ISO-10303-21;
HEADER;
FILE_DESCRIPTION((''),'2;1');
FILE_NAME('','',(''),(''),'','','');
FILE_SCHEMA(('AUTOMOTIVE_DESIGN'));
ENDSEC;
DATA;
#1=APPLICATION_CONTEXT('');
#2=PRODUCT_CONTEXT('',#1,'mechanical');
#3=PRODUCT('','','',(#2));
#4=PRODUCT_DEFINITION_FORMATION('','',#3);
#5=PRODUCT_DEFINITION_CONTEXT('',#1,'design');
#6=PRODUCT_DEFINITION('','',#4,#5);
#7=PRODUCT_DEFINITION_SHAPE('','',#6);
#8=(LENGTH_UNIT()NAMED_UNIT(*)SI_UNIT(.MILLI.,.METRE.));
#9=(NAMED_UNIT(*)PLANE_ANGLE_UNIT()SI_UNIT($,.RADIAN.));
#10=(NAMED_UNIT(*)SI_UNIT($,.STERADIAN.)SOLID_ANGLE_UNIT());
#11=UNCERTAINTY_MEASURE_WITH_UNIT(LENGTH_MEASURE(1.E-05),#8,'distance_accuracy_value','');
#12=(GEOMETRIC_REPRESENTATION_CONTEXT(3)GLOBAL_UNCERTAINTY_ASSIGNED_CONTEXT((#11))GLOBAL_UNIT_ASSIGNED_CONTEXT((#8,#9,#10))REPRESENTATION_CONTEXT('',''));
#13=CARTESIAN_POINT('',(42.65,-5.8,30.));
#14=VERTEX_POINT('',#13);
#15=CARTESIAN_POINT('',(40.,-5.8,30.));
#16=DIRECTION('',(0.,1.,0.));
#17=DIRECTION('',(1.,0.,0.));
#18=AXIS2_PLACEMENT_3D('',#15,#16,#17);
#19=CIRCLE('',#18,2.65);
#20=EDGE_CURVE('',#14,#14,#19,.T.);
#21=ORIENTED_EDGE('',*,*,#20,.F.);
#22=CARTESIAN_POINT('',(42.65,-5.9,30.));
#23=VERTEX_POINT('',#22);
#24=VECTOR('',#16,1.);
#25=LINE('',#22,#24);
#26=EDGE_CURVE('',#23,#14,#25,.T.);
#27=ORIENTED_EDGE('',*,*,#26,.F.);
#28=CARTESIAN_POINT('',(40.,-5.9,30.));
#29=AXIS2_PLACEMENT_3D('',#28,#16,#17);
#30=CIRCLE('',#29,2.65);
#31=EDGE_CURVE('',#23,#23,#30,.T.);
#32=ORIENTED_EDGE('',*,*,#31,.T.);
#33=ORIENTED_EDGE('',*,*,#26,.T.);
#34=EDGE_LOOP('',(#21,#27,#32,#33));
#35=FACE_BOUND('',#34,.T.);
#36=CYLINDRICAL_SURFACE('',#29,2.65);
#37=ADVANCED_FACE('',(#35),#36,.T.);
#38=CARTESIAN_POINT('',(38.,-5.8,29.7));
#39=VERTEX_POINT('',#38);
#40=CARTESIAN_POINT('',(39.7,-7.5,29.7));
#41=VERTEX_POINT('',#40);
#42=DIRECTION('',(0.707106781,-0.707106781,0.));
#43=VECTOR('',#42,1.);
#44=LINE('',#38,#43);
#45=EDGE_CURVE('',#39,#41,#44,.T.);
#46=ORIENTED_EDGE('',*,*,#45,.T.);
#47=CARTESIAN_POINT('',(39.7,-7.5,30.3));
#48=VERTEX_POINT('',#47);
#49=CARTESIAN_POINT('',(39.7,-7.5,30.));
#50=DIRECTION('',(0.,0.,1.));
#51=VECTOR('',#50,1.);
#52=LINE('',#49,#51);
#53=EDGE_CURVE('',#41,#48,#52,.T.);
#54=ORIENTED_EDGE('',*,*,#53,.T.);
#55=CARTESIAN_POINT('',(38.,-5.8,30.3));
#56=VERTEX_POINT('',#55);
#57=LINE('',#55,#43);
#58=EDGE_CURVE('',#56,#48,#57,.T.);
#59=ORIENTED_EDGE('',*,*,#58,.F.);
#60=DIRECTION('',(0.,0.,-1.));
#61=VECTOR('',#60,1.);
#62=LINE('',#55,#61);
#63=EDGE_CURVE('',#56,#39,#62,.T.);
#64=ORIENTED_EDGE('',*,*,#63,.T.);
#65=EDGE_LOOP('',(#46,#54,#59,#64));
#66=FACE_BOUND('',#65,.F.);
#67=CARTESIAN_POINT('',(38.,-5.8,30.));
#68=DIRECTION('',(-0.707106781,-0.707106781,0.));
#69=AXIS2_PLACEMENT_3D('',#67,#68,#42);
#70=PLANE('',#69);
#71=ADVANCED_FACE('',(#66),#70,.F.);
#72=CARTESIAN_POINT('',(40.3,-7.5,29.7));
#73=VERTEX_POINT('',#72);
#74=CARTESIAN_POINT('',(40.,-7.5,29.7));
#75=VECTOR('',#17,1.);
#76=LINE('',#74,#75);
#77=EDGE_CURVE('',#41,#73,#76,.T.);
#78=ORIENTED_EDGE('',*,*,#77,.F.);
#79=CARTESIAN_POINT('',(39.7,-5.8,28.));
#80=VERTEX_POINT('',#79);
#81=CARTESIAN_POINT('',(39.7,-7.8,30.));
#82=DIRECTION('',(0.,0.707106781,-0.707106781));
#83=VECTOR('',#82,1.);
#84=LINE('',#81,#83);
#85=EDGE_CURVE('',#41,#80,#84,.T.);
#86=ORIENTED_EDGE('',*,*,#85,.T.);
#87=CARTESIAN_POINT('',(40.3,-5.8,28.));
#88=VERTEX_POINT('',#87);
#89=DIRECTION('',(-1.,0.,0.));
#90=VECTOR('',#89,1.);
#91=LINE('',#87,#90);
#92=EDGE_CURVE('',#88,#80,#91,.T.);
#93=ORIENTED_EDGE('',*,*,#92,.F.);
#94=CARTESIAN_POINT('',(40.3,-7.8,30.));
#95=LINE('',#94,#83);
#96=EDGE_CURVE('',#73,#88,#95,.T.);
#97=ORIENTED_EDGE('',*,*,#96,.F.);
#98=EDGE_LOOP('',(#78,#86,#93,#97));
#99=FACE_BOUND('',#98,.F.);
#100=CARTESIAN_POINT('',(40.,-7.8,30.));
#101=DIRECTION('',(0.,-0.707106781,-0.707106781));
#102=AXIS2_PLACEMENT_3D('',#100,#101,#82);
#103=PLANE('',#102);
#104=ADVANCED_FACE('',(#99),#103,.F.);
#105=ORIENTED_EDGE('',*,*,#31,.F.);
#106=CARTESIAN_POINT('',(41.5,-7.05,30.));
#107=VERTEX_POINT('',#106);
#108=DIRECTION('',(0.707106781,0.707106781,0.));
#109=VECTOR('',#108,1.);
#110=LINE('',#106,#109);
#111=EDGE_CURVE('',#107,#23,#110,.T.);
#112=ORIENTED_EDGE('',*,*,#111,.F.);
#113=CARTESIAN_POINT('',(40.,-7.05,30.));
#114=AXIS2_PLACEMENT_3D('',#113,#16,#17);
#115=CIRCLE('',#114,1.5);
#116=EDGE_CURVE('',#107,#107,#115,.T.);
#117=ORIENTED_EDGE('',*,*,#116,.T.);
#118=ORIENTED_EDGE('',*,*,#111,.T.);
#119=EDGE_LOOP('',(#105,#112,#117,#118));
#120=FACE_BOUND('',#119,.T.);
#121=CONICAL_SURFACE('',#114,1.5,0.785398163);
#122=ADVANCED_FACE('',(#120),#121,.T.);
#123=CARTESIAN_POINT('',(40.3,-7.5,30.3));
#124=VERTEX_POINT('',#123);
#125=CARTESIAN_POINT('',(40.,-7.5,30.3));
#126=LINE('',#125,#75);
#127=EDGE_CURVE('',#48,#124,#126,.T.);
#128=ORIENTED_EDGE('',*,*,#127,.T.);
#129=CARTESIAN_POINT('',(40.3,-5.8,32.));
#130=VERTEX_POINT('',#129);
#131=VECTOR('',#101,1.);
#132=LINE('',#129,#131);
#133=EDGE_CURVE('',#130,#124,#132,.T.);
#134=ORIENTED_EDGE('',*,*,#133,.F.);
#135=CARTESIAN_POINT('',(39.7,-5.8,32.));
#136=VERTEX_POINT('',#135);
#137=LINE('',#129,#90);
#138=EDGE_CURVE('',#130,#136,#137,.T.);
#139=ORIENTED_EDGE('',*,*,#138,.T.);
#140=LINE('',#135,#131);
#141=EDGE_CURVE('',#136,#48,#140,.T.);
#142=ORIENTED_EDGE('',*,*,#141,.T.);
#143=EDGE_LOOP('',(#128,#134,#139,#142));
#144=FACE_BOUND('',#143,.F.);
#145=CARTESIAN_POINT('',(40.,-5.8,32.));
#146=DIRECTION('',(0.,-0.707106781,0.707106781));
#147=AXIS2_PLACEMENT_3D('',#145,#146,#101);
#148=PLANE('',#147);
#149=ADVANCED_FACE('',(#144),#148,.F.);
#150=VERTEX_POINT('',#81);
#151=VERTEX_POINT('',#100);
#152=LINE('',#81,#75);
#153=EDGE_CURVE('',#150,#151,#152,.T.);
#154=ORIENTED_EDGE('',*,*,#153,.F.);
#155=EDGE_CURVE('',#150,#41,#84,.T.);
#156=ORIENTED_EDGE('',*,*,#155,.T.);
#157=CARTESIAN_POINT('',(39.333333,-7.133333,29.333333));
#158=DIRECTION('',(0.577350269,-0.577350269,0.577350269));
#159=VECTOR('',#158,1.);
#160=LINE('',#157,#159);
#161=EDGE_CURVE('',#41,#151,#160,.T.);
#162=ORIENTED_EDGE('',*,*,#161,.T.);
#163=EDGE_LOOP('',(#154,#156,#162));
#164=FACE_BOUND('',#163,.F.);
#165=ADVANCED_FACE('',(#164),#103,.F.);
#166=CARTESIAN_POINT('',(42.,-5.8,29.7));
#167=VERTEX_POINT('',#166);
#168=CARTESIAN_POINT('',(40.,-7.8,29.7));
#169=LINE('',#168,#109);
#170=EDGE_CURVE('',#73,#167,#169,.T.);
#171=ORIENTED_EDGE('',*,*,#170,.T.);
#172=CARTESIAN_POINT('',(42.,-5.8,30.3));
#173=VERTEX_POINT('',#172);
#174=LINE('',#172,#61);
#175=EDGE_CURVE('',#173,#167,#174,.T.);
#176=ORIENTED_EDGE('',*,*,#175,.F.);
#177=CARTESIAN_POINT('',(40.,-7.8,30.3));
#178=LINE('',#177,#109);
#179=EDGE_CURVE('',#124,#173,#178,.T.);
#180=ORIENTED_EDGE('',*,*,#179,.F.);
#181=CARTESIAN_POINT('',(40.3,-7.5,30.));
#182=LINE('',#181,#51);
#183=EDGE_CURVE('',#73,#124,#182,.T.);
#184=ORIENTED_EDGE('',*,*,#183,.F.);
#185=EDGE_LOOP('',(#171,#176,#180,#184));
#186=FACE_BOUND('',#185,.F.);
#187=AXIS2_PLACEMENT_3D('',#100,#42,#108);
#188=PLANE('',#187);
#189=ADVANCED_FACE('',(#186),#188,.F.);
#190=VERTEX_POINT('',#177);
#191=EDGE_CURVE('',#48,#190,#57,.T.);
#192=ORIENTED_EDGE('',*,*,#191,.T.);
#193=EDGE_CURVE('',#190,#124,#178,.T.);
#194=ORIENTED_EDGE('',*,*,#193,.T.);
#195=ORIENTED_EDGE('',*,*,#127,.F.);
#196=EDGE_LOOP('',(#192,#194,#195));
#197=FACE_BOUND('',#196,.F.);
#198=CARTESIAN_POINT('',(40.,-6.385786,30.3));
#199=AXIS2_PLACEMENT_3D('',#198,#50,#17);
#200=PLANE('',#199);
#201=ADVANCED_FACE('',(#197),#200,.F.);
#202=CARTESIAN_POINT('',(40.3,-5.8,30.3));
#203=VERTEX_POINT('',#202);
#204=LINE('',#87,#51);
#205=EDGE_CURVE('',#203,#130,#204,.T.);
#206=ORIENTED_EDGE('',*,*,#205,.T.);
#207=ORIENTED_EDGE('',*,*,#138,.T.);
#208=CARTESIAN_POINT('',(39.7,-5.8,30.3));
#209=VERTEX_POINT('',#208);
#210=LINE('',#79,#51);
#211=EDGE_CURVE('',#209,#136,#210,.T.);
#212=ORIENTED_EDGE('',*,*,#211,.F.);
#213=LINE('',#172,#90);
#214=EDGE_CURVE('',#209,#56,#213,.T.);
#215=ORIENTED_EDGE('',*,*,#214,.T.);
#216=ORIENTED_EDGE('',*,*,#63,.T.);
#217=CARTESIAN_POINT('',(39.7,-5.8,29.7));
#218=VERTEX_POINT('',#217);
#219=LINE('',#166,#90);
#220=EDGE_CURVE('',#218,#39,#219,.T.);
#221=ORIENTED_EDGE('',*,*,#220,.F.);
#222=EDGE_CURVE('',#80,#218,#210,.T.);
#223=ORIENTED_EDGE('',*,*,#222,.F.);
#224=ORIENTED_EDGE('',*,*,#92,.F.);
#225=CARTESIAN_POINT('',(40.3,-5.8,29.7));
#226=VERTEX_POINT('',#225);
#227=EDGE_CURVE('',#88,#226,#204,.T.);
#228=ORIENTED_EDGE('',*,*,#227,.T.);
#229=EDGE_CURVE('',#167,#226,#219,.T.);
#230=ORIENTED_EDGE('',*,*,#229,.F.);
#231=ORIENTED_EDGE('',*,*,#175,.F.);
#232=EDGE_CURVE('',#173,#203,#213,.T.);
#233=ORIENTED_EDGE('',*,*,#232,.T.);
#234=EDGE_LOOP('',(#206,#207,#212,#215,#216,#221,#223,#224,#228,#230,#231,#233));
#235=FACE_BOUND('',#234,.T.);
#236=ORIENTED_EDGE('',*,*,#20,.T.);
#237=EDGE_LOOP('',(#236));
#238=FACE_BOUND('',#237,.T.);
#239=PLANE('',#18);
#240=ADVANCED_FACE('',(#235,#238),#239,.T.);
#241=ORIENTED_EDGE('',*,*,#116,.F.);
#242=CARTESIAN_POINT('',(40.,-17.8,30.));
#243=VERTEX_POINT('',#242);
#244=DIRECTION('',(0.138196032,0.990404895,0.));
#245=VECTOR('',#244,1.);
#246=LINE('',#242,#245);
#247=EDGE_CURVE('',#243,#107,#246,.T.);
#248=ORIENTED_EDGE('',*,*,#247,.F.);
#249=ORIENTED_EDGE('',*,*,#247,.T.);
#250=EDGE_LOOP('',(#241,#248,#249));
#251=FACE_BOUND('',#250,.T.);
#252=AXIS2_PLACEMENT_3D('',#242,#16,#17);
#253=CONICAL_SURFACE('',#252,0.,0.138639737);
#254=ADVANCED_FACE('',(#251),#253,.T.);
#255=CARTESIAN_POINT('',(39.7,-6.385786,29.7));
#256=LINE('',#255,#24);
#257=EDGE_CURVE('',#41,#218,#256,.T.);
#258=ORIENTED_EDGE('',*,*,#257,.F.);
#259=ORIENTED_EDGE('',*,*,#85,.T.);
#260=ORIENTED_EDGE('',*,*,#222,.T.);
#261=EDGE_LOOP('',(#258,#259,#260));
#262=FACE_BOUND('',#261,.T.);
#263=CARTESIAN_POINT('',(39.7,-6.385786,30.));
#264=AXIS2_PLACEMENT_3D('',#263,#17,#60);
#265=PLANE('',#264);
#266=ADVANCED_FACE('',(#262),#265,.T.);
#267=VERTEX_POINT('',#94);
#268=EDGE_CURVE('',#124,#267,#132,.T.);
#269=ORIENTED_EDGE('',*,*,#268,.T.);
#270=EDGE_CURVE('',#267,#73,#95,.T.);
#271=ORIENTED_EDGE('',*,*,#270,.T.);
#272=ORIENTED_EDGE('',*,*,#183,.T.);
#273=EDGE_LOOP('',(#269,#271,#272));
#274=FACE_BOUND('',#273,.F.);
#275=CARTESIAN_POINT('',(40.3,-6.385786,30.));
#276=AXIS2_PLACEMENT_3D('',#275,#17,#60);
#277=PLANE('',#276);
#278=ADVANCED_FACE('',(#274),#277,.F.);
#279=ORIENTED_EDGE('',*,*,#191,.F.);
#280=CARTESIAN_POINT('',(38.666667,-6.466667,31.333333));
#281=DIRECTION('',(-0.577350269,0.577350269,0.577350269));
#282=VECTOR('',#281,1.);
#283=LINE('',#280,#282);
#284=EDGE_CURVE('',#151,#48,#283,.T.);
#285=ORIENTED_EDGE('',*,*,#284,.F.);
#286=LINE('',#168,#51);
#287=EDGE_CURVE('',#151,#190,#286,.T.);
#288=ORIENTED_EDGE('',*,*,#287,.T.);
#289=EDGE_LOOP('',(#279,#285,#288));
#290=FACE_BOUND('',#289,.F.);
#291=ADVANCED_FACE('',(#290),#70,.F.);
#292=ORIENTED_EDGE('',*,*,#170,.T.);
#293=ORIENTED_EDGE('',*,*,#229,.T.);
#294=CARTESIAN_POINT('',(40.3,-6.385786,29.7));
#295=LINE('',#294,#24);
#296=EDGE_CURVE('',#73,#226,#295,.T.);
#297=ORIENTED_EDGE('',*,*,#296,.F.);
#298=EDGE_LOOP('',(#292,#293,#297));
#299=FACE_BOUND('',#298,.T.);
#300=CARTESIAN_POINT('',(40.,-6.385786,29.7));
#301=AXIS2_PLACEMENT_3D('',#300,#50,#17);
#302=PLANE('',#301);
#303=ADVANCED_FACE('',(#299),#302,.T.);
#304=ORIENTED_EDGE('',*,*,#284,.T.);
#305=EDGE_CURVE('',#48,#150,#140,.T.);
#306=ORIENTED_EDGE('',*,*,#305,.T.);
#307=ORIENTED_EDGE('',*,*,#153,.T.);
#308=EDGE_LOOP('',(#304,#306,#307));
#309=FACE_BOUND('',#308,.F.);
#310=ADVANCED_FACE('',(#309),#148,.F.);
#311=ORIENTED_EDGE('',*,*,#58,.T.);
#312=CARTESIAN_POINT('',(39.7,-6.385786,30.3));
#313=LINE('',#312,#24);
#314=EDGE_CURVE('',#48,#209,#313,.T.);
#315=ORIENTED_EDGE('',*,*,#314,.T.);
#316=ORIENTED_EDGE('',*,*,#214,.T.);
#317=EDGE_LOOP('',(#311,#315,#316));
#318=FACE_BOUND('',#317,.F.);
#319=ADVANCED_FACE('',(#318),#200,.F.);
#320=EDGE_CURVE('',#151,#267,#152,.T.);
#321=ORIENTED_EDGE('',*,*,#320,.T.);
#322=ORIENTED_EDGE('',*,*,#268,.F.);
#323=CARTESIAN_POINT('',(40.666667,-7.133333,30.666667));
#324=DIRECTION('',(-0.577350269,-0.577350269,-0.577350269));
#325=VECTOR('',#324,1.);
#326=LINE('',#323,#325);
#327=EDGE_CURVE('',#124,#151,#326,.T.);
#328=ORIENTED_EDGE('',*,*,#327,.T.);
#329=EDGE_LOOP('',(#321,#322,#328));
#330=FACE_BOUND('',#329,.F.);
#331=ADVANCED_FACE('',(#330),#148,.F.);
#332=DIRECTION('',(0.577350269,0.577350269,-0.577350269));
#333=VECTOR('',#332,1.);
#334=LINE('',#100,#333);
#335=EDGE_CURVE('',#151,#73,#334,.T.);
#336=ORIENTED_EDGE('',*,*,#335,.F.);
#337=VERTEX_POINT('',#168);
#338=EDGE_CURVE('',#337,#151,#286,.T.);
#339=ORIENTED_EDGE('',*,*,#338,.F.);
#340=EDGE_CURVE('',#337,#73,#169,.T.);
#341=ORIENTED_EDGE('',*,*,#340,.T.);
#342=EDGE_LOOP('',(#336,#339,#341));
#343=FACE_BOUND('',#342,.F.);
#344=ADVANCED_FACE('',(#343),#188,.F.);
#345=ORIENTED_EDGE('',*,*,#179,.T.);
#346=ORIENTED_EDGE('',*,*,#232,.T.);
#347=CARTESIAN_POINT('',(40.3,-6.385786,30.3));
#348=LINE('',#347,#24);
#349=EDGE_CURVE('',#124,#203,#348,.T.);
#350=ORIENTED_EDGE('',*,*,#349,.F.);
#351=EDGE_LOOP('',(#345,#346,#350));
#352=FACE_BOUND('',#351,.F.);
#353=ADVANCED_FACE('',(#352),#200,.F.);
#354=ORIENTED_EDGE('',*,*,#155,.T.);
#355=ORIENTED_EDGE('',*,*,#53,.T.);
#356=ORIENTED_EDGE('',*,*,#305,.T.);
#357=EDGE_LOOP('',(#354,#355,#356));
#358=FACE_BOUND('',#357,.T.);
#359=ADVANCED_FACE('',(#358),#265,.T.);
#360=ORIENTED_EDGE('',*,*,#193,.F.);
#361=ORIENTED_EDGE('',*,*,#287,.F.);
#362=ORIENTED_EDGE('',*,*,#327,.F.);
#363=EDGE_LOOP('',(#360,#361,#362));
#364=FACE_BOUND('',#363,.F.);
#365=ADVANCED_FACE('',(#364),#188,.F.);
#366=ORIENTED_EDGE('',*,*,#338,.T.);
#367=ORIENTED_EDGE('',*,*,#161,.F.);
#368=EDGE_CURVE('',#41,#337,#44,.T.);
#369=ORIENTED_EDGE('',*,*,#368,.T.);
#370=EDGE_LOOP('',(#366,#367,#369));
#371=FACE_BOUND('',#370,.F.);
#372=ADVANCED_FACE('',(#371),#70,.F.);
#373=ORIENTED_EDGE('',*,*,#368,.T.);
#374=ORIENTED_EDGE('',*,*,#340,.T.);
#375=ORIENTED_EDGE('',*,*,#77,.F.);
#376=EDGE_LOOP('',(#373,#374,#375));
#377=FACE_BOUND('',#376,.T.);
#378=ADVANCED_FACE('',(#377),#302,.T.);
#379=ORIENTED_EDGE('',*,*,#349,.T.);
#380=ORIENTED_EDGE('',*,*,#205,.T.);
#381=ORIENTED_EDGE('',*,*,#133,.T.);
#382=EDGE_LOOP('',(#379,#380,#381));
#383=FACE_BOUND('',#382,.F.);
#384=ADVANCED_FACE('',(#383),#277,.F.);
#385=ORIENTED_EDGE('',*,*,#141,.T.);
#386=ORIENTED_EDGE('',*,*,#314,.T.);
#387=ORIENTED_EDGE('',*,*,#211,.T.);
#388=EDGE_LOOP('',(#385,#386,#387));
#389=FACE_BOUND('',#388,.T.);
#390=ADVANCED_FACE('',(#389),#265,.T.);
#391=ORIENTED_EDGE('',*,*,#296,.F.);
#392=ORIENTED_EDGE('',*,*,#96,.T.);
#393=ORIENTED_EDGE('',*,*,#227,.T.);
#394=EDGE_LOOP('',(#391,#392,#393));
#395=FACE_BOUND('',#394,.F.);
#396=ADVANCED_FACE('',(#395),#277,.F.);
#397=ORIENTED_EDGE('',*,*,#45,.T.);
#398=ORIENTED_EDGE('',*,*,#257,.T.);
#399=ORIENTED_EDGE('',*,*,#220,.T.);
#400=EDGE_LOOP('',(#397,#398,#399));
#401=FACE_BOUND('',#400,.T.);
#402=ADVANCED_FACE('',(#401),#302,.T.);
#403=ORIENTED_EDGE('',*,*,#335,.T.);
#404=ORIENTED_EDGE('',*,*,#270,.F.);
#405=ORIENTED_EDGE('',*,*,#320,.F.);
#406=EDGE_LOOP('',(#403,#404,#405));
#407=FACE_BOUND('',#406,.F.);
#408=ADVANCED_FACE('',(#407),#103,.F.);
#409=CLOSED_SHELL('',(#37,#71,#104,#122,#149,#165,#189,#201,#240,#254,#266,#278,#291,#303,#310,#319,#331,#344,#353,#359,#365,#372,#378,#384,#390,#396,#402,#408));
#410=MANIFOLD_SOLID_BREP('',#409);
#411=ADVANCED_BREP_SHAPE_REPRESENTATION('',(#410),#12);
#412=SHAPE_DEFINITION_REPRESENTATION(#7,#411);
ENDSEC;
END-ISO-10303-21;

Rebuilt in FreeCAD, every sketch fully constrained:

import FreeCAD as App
import Part
import Sketcher
Q = App.Units.Quantity


def add_polygon(sketch, points):
    """Adds a closed chain of lines whose ends are joined by coincident constraints."""
    first, n = sketch.GeometryCount, len(points)
    for a, b in zip(points, points[1:] + points[:1]):
        sketch.addGeometry(Part.LineSegment(App.Vector(*a, 0), App.Vector(*b, 0)), False)
    for i in range(n):
        sketch.addConstraint(Sketcher.Constraint("Coincident", first + i, 2, first + (i + 1) % n, 1))

doc = App.newDocument("Part")
body = doc.addObject("PartDesign::Body", "Body")

sketch1 = doc.addObject("Sketcher::SketchObject", "Sketch")
body.addObject(sketch1)
sketch1.AttachmentSupport = (doc.XZ_Plane, [""])
sketch1.MapMode = "FlatFace"
add_polygon(sketch1, [(0, 0), (0, -12), (1.5, -1.25), (2.65, -0.1), (2.65, 0)])
sketch1.addConstraint(Sketcher.Constraint("Vertical", 0))
sketch1.addConstraint(Sketcher.Constraint("Vertical", 3))
sketch1.addConstraint(Sketcher.Constraint("Horizontal", 4))
sketch1.addConstraint(Sketcher.Constraint("Coincident", 4, 2, -1, 1))
sketch1.addConstraint(Sketcher.Constraint("DistanceY", 0, 2, 0, 1, 12.0))
sketch1.addConstraint(Sketcher.Constraint("Angle", 2, Q("45 deg")))
sketch1.addConstraint(Sketcher.Constraint("DistanceY", 3, 1, 3, 2, 0.1))
sketch1.addConstraint(Sketcher.Constraint("DistanceX", 4, 2, 4, 1, 2.65))
sketch1.addConstraint(Sketcher.Constraint("DistanceX", -1, 1, 1, 2, 1.5))
revolution = doc.addObject("PartDesign::Revolution", "Revolution")
body.addObject(revolution)
revolution.Profile = sketch1
revolution.ReferenceAxis = (sketch1, ["V_Axis"])
revolution.Angle = 360

sketch2 = doc.addObject("Sketcher::SketchObject", "Sketch001")
body.addObject(sketch2)
sketch2.AttachmentSupport = (doc.XZ_Plane, [""])
sketch2.MapMode = "FlatFace"
add_polygon(sketch2, [(-2, 0), (0, -2), (2, 0)])
sketch2.addConstraint(Sketcher.Constraint("Horizontal", 2))
sketch2.addConstraint(Sketcher.Constraint("Symmetric", 1, 2, 2, 2, -1, 1))
sketch2.addConstraint(Sketcher.Constraint("PointOnObject", 0, 2, -2))
sketch2.addConstraint(Sketcher.Constraint("Perpendicular", 0, 1))
sketch2.addConstraint(Sketcher.Constraint("DistanceX", 2, 2, 2, 1, 4.0))
pocket1 = doc.addObject("PartDesign::Pocket", "Pocket")
body.addObject(pocket1)
pocket1.Profile = sketch2
pocket1.Length = 0.6
pocket1.Midplane = True
doc.recompute()

polarpattern = doc.addObject("PartDesign::PolarPattern", "PolarPattern")
body.addObject(polarpattern)
polarpattern.Originals = [pocket1]
polarpattern.Axis = (doc.Z_Axis, [""])
polarpattern.Angle = 90
polarpattern.Occurrences = 2
body.Tip = polarpattern
body2 = doc.addObject("PartDesign::Body", "Body001")
doc.recompute()

body.Placement = App.Placement(App.Vector(40, -5.8, 30), App.Rotation(App.Vector(-1, 0, 0), 90))
boolean = doc.addObject("PartDesign::Boolean", "Boolean")
body2.addObject(boolean)
boolean.Type = "Fuse"
boolean.addObjects([body])

doc.recompute()
